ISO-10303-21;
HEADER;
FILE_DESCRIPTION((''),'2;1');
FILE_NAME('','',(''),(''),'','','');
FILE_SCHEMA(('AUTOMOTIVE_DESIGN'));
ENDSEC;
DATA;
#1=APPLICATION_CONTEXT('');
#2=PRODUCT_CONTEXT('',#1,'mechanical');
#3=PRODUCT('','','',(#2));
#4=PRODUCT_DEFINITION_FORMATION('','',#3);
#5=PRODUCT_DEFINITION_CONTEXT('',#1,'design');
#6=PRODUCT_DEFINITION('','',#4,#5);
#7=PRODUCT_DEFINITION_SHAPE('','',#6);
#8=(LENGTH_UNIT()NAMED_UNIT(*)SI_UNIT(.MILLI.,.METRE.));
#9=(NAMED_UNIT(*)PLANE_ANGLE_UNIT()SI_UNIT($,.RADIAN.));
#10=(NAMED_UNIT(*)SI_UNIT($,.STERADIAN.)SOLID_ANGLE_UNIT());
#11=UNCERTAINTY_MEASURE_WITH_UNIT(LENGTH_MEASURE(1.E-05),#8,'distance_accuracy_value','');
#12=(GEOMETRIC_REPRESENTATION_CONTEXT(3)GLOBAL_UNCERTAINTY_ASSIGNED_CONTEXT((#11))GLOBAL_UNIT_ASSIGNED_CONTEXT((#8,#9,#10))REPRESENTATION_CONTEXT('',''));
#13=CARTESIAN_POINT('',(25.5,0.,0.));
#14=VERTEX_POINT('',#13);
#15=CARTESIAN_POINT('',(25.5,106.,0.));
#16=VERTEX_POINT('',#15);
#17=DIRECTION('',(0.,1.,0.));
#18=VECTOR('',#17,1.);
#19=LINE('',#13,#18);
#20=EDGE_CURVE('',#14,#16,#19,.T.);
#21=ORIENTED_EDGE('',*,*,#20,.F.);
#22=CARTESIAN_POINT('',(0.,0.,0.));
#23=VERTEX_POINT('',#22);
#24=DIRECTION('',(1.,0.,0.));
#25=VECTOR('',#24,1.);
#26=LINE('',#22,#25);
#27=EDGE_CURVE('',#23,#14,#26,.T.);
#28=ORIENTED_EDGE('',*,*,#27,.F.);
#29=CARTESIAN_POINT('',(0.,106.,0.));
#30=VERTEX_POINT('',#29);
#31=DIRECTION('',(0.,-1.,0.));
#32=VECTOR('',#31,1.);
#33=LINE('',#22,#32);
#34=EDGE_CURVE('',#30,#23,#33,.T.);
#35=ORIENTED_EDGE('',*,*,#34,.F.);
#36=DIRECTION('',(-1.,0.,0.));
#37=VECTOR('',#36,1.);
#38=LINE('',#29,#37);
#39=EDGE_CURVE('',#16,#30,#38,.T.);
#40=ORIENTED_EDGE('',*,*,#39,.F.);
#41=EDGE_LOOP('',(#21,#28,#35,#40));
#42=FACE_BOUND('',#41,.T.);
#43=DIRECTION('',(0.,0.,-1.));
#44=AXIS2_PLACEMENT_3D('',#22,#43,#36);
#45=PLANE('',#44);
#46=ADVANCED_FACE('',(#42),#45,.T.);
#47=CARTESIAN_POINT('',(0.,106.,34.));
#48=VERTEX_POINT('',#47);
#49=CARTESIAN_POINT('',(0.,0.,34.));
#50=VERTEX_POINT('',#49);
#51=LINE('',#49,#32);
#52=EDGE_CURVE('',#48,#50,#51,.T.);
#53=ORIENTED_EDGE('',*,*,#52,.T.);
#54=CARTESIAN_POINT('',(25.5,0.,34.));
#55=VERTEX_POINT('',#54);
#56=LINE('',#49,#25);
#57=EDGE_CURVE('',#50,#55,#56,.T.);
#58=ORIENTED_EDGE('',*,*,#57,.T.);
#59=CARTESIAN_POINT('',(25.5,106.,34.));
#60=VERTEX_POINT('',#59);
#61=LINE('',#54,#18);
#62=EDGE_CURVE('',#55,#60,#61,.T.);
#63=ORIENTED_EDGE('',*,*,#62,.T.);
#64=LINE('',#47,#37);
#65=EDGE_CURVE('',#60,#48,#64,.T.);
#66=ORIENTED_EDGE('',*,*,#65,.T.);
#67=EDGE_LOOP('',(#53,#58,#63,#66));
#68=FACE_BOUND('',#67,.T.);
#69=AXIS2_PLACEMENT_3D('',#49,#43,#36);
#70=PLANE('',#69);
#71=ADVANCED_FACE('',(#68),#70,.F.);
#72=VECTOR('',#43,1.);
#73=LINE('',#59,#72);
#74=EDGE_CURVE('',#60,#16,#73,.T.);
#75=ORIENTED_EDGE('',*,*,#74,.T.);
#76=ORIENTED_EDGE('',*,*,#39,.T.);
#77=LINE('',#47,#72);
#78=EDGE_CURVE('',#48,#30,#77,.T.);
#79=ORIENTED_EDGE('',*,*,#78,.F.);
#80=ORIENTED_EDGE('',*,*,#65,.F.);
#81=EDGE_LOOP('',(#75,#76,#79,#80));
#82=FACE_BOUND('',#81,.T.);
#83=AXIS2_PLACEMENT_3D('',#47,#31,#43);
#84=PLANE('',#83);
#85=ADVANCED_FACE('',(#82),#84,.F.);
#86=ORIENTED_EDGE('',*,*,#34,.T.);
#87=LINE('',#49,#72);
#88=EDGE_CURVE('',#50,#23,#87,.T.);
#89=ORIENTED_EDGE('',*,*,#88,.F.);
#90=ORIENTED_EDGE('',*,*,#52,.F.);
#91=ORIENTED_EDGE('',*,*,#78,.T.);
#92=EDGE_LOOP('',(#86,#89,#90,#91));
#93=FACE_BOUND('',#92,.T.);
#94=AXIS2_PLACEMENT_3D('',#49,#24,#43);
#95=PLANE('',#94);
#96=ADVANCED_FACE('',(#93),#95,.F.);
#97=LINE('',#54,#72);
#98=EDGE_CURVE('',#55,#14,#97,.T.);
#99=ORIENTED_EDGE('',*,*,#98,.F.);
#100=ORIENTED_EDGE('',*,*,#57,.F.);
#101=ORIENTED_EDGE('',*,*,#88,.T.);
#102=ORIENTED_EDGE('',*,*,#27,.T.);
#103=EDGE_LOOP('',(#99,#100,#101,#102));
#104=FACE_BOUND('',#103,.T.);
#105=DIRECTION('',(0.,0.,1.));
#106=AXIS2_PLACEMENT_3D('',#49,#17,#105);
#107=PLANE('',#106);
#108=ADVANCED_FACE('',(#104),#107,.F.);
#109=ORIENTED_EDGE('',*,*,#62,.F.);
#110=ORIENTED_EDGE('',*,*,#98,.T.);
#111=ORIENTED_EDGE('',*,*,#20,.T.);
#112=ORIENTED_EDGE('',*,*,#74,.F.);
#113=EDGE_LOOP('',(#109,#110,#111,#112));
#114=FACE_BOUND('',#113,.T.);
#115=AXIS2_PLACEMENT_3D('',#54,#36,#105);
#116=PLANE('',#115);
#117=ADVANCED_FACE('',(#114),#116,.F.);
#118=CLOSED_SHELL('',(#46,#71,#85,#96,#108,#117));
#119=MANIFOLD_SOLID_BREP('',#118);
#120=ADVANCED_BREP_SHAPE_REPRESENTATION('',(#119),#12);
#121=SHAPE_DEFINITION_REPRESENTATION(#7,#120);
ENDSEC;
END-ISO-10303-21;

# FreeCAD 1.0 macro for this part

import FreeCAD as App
import Part
import Sketcher
from FreeCAD import Vector


def add_polygon(sketch, points):
    """Adds a closed chain of lines whose ends are joined by coincident constraints."""
    first, n = sketch.GeometryCount, len(points)
    for a, b in zip(points, points[1:] + points[:1]):
        sketch.addGeometry(Part.LineSegment(App.Vector(*a, 0), App.Vector(*b, 0)), False)
    for i in range(n):
        sketch.addConstraint(Sketcher.Constraint("Coincident", first + i, 2, first + (i + 1) % n, 1))

doc = App.newDocument("Part")
body = doc.addObject("PartDesign::Body", "Body")

# Sketch on XY plane
sketch1 = body.newObject("Sketcher::SketchObject", "Sketch")
sketch1.AttachmentSupport = (doc.getObject("XY_Plane"), [""])
sketch1.MapMode = "FlatFace"
add_polygon(sketch1, [(0, 106), (0, 0), (26, 0), (26, 106)])  # lines 0-3
sketch1.addConstraint(Sketcher.Constraint("Vertical", 0))
sketch1.addConstraint(Sketcher.Constraint("Horizontal", 1))
sketch1.addConstraint(Sketcher.Constraint("Vertical", 2))
sketch1.addConstraint(Sketcher.Constraint("Horizontal", 3))
sketch1.addConstraint(Sketcher.Constraint("Coincident", 0, 2, -1, 1))
sketch1.addConstraint(Sketcher.Constraint("DistanceY", 0, 2, 0, 1, 106.0))
sketch1.addConstraint(Sketcher.Constraint("DistanceX", 1, 1, 1, 2, 25.5))
pad1 = body.newObject("PartDesign::Pad", "Pad")
pad1.Profile = sketch1
pad1.Length = 34

doc.recompute()
